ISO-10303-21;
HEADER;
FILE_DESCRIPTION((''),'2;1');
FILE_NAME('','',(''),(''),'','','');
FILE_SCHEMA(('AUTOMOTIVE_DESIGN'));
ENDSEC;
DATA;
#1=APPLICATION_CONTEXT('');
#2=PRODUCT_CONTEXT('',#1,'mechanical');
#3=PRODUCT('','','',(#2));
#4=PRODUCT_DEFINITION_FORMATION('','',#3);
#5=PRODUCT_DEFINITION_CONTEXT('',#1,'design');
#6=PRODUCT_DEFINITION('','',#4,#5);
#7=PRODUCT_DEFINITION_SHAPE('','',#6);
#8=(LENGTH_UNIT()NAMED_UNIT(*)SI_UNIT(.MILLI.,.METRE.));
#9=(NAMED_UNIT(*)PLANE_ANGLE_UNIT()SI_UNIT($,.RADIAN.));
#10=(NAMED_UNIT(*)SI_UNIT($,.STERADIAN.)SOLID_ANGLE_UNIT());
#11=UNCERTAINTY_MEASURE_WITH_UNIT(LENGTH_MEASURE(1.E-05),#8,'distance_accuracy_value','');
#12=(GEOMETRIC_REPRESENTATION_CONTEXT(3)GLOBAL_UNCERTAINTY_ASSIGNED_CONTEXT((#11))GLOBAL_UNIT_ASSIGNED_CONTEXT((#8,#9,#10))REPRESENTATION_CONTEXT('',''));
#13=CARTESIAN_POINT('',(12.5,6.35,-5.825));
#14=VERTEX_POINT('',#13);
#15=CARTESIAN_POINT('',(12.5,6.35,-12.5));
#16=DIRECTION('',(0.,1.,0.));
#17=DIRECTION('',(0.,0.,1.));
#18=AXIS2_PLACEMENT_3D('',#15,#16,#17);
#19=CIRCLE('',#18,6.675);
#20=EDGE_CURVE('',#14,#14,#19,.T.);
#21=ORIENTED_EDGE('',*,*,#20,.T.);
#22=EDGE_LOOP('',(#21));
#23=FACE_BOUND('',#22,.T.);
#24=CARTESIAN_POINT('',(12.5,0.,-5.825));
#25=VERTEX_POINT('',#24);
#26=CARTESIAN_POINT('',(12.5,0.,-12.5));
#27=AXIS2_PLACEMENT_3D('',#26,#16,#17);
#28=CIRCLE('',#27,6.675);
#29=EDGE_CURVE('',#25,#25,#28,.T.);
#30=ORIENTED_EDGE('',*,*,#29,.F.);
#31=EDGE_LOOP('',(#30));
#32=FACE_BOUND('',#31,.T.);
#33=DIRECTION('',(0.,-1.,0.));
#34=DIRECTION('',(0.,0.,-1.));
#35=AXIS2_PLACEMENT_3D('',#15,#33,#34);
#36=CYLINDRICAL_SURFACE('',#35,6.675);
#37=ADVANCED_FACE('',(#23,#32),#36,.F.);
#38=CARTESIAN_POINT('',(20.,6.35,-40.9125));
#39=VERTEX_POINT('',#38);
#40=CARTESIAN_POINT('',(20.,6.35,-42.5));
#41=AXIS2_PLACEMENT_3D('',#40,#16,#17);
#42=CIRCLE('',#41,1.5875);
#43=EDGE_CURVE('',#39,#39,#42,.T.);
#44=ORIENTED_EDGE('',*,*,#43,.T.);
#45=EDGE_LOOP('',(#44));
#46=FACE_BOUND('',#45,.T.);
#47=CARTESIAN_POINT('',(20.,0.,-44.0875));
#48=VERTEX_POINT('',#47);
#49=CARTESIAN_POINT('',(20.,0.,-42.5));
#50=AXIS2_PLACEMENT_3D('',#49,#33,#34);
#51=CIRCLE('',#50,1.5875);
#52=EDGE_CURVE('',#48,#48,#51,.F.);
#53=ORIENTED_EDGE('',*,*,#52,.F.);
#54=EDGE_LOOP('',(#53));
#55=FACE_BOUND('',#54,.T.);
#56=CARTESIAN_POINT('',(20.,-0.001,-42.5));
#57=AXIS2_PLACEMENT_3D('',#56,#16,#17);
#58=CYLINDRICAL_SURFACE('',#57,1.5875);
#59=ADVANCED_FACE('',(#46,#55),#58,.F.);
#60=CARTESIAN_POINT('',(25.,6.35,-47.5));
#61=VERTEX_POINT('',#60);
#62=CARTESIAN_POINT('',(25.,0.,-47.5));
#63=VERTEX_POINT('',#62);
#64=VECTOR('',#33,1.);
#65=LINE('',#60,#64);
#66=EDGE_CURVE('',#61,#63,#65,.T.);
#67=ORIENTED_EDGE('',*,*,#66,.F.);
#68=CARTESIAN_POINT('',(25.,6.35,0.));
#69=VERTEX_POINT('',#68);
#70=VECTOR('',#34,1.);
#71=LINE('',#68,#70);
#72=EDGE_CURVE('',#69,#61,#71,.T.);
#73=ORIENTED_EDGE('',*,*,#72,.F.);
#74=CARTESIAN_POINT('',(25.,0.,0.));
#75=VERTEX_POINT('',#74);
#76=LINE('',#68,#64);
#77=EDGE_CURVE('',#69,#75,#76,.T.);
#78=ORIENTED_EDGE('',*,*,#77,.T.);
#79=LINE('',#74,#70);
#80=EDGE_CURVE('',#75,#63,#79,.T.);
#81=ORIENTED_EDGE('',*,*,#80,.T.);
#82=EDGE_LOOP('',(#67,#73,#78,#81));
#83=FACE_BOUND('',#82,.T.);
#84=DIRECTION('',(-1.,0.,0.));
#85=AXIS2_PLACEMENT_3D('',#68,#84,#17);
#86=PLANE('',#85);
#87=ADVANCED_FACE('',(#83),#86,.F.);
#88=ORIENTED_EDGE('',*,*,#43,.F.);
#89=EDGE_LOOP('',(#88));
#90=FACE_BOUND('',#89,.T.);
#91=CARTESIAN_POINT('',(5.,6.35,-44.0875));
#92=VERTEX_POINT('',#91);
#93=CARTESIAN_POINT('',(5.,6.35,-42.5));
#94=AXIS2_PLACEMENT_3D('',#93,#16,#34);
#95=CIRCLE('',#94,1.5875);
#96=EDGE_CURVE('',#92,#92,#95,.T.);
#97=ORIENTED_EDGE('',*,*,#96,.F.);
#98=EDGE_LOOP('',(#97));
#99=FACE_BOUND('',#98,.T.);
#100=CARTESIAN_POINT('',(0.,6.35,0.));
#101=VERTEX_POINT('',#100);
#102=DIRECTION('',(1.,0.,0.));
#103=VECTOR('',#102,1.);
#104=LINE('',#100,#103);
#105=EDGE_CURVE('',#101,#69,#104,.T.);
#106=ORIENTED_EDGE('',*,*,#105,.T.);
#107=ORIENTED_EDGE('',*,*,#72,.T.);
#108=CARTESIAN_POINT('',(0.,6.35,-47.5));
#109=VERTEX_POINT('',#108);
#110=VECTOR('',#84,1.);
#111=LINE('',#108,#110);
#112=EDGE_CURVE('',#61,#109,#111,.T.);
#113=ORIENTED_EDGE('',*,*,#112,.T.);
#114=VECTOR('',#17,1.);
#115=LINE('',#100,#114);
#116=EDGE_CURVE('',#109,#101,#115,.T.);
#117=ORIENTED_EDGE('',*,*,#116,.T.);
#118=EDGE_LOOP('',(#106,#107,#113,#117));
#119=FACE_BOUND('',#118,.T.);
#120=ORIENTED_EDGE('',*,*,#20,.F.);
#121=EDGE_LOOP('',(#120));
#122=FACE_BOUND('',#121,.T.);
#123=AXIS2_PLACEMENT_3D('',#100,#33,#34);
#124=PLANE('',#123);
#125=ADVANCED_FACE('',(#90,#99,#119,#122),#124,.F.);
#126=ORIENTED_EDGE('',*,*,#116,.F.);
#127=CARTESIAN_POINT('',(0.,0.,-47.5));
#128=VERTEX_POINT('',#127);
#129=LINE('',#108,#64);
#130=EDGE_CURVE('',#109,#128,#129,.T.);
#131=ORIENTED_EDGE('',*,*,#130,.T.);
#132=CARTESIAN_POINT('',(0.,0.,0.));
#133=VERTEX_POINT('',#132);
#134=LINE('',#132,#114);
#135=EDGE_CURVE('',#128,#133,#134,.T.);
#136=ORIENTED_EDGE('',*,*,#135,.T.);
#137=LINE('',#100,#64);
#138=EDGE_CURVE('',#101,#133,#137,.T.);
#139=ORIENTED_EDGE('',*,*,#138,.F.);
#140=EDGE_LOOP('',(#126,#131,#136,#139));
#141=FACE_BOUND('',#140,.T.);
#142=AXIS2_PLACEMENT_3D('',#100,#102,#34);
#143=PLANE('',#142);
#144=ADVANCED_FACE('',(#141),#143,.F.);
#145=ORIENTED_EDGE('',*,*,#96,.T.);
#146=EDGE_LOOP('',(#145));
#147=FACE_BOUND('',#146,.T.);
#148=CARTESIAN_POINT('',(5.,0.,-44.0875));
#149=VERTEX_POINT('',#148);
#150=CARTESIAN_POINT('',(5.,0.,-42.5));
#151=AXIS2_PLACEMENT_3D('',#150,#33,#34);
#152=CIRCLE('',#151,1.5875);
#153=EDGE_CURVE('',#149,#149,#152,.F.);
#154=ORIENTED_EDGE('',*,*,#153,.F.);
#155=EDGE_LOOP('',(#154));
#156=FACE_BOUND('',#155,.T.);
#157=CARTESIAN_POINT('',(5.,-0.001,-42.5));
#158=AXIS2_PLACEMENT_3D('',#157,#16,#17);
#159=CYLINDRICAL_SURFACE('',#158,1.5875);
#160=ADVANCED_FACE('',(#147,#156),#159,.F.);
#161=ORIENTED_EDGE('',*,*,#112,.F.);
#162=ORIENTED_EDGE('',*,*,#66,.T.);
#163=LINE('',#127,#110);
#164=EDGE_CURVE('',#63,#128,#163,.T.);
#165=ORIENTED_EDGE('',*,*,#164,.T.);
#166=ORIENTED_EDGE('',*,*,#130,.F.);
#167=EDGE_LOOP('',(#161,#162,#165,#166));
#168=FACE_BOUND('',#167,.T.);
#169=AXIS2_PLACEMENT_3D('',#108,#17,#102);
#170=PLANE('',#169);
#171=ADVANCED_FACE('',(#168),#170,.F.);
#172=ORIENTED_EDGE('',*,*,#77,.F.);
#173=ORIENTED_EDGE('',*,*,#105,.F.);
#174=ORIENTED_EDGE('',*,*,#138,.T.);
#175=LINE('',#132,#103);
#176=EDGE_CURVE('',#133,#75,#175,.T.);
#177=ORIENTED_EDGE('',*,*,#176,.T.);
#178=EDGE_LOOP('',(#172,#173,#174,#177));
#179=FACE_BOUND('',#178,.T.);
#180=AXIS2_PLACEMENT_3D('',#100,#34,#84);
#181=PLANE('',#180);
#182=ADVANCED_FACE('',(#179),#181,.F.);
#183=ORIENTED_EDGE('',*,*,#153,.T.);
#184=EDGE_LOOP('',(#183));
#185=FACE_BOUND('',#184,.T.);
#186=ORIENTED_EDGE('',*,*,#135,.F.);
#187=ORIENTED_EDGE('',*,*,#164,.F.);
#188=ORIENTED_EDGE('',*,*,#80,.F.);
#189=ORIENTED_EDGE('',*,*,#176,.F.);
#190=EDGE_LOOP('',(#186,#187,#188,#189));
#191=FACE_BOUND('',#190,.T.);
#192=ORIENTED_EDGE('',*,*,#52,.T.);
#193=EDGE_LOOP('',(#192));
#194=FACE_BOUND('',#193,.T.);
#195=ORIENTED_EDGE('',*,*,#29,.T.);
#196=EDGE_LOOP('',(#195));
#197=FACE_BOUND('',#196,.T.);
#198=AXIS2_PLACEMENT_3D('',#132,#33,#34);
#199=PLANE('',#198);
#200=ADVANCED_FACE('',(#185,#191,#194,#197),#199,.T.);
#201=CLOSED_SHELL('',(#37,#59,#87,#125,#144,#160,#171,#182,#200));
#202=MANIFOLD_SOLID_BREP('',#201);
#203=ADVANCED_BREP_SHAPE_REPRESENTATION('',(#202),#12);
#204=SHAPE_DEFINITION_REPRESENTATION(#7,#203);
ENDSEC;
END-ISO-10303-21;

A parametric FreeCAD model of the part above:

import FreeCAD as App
import Part
import Sketcher

doc = App.newDocument("Part")
body = doc.addObject("PartDesign::Body", "Body")

sketch1 = body.newObject("Sketcher::SketchObject", "Sketch")
sketch1.AttachmentSupport = (doc.getObject("XZ_Plane"), [""])
sketch1.MapMode = "FlatFace"
sketch1.addGeometry([
    Part.LineSegment(App.Vector(0, -48, 0), App.Vector(0, 0, 0)),
    Part.LineSegment(App.Vector(0, 0, 0), App.Vector(25, 0, 0)),
    Part.LineSegment(App.Vector(25, 0, 0), App.Vector(25, -48, 0)),
    Part.LineSegment(App.Vector(25, -48, 0), App.Vector(0, -48, 0)),
    Part.Circle(App.Vector(12, -12, 0), App.Vector(0, 0, 1), 7),
], False)
sketch1.addConstraint([
    Sketcher.Constraint("Coincident", 0, 2, 1, 1),
    Sketcher.Constraint("Coincident", 1, 2, 2, 1),
    Sketcher.Constraint("Coincident", 2, 2, 3, 1),
    Sketcher.Constraint("Coincident", 3, 2, 0, 1),
    Sketcher.Constraint("Vertical", 0),
    Sketcher.Constraint("Horizontal", 1),
    Sketcher.Constraint("Vertical", 2),
    Sketcher.Constraint("Horizontal", 3),
    Sketcher.Constraint("Coincident", 0, 2, -1, 1),
    Sketcher.Constraint("Diameter", 4, 13.35),
    Sketcher.Constraint("DistanceX", 1, 1, 1, 2, 25.0),
    Sketcher.Constraint("DistanceY", 0, 1, 0, 2, 47.5),
    Sketcher.Constraint("DistanceY", 2, 2, 4, 3, 35.0),
    Sketcher.Constraint("DistanceX", -1, 1, 4, 3, 12.5),
])
pad1 = body.newObject("PartDesign::Pad", "Pad")
pad1.Profile = sketch1
pad1.Length = 6.35
pad1.Reversed = True

sketch2 = body.newObject("Sketcher::SketchObject", "Sketch001")
sketch2.AttachmentSupport = (doc.getObject("XZ_Plane"), [""])
sketch2.MapMode = "FlatFace"
sketch2.AttachmentOffset = App.Placement(App.Vector(0, 0, -6.35), App.Rotation())
sketch2.addGeometry(Part.Circle(App.Vector(20, -42.5, 0), App.Vector(0, 0, 1), 1.6), False)
sketch2.addConstraint([
    Sketcher.Constraint("Diameter", 0, 3.175),
    Sketcher.Constraint("DistanceX", -1, 1, 0, 3, 20.0),
    Sketcher.Constraint("DistanceY", 0, 3, -1, 1, 42.5),
])
pocket1 = body.newObject("PartDesign::Pocket", "Pocket")
pocket1.Profile = sketch2
pocket1.Type = "UpToFirst"
pocket1.Reversed = True

sketch3 = body.newObject("Sketcher::SketchObject", "Sketch002")
sketch3.AttachmentSupport = (doc.getObject("XZ_Plane"), [""])
sketch3.MapMode = "FlatFace"
sketch3.AttachmentOffset = App.Placement(App.Vector(0, 0, -6.35), App.Rotation())
sketch3.addGeometry(Part.Circle(App.Vector(5, -42.5, 0), App.Vector(0, 0, 1), 1.6), False)
sketch3.addConstraint([
    Sketcher.Constraint("Diameter", 0, 3.175),
    Sketcher.Constraint("DistanceX", -1, 1, 0, 3, 5.0),
    Sketcher.Constraint("DistanceY", 0, 3, -1, 1, 42.5),
])
pocket2 = body.newObject("PartDesign::Pocket", "Pocket001")
pocket2.Profile = sketch3
pocket2.Type = "UpToFirst"
pocket2.Reversed = True

doc.recompute()
